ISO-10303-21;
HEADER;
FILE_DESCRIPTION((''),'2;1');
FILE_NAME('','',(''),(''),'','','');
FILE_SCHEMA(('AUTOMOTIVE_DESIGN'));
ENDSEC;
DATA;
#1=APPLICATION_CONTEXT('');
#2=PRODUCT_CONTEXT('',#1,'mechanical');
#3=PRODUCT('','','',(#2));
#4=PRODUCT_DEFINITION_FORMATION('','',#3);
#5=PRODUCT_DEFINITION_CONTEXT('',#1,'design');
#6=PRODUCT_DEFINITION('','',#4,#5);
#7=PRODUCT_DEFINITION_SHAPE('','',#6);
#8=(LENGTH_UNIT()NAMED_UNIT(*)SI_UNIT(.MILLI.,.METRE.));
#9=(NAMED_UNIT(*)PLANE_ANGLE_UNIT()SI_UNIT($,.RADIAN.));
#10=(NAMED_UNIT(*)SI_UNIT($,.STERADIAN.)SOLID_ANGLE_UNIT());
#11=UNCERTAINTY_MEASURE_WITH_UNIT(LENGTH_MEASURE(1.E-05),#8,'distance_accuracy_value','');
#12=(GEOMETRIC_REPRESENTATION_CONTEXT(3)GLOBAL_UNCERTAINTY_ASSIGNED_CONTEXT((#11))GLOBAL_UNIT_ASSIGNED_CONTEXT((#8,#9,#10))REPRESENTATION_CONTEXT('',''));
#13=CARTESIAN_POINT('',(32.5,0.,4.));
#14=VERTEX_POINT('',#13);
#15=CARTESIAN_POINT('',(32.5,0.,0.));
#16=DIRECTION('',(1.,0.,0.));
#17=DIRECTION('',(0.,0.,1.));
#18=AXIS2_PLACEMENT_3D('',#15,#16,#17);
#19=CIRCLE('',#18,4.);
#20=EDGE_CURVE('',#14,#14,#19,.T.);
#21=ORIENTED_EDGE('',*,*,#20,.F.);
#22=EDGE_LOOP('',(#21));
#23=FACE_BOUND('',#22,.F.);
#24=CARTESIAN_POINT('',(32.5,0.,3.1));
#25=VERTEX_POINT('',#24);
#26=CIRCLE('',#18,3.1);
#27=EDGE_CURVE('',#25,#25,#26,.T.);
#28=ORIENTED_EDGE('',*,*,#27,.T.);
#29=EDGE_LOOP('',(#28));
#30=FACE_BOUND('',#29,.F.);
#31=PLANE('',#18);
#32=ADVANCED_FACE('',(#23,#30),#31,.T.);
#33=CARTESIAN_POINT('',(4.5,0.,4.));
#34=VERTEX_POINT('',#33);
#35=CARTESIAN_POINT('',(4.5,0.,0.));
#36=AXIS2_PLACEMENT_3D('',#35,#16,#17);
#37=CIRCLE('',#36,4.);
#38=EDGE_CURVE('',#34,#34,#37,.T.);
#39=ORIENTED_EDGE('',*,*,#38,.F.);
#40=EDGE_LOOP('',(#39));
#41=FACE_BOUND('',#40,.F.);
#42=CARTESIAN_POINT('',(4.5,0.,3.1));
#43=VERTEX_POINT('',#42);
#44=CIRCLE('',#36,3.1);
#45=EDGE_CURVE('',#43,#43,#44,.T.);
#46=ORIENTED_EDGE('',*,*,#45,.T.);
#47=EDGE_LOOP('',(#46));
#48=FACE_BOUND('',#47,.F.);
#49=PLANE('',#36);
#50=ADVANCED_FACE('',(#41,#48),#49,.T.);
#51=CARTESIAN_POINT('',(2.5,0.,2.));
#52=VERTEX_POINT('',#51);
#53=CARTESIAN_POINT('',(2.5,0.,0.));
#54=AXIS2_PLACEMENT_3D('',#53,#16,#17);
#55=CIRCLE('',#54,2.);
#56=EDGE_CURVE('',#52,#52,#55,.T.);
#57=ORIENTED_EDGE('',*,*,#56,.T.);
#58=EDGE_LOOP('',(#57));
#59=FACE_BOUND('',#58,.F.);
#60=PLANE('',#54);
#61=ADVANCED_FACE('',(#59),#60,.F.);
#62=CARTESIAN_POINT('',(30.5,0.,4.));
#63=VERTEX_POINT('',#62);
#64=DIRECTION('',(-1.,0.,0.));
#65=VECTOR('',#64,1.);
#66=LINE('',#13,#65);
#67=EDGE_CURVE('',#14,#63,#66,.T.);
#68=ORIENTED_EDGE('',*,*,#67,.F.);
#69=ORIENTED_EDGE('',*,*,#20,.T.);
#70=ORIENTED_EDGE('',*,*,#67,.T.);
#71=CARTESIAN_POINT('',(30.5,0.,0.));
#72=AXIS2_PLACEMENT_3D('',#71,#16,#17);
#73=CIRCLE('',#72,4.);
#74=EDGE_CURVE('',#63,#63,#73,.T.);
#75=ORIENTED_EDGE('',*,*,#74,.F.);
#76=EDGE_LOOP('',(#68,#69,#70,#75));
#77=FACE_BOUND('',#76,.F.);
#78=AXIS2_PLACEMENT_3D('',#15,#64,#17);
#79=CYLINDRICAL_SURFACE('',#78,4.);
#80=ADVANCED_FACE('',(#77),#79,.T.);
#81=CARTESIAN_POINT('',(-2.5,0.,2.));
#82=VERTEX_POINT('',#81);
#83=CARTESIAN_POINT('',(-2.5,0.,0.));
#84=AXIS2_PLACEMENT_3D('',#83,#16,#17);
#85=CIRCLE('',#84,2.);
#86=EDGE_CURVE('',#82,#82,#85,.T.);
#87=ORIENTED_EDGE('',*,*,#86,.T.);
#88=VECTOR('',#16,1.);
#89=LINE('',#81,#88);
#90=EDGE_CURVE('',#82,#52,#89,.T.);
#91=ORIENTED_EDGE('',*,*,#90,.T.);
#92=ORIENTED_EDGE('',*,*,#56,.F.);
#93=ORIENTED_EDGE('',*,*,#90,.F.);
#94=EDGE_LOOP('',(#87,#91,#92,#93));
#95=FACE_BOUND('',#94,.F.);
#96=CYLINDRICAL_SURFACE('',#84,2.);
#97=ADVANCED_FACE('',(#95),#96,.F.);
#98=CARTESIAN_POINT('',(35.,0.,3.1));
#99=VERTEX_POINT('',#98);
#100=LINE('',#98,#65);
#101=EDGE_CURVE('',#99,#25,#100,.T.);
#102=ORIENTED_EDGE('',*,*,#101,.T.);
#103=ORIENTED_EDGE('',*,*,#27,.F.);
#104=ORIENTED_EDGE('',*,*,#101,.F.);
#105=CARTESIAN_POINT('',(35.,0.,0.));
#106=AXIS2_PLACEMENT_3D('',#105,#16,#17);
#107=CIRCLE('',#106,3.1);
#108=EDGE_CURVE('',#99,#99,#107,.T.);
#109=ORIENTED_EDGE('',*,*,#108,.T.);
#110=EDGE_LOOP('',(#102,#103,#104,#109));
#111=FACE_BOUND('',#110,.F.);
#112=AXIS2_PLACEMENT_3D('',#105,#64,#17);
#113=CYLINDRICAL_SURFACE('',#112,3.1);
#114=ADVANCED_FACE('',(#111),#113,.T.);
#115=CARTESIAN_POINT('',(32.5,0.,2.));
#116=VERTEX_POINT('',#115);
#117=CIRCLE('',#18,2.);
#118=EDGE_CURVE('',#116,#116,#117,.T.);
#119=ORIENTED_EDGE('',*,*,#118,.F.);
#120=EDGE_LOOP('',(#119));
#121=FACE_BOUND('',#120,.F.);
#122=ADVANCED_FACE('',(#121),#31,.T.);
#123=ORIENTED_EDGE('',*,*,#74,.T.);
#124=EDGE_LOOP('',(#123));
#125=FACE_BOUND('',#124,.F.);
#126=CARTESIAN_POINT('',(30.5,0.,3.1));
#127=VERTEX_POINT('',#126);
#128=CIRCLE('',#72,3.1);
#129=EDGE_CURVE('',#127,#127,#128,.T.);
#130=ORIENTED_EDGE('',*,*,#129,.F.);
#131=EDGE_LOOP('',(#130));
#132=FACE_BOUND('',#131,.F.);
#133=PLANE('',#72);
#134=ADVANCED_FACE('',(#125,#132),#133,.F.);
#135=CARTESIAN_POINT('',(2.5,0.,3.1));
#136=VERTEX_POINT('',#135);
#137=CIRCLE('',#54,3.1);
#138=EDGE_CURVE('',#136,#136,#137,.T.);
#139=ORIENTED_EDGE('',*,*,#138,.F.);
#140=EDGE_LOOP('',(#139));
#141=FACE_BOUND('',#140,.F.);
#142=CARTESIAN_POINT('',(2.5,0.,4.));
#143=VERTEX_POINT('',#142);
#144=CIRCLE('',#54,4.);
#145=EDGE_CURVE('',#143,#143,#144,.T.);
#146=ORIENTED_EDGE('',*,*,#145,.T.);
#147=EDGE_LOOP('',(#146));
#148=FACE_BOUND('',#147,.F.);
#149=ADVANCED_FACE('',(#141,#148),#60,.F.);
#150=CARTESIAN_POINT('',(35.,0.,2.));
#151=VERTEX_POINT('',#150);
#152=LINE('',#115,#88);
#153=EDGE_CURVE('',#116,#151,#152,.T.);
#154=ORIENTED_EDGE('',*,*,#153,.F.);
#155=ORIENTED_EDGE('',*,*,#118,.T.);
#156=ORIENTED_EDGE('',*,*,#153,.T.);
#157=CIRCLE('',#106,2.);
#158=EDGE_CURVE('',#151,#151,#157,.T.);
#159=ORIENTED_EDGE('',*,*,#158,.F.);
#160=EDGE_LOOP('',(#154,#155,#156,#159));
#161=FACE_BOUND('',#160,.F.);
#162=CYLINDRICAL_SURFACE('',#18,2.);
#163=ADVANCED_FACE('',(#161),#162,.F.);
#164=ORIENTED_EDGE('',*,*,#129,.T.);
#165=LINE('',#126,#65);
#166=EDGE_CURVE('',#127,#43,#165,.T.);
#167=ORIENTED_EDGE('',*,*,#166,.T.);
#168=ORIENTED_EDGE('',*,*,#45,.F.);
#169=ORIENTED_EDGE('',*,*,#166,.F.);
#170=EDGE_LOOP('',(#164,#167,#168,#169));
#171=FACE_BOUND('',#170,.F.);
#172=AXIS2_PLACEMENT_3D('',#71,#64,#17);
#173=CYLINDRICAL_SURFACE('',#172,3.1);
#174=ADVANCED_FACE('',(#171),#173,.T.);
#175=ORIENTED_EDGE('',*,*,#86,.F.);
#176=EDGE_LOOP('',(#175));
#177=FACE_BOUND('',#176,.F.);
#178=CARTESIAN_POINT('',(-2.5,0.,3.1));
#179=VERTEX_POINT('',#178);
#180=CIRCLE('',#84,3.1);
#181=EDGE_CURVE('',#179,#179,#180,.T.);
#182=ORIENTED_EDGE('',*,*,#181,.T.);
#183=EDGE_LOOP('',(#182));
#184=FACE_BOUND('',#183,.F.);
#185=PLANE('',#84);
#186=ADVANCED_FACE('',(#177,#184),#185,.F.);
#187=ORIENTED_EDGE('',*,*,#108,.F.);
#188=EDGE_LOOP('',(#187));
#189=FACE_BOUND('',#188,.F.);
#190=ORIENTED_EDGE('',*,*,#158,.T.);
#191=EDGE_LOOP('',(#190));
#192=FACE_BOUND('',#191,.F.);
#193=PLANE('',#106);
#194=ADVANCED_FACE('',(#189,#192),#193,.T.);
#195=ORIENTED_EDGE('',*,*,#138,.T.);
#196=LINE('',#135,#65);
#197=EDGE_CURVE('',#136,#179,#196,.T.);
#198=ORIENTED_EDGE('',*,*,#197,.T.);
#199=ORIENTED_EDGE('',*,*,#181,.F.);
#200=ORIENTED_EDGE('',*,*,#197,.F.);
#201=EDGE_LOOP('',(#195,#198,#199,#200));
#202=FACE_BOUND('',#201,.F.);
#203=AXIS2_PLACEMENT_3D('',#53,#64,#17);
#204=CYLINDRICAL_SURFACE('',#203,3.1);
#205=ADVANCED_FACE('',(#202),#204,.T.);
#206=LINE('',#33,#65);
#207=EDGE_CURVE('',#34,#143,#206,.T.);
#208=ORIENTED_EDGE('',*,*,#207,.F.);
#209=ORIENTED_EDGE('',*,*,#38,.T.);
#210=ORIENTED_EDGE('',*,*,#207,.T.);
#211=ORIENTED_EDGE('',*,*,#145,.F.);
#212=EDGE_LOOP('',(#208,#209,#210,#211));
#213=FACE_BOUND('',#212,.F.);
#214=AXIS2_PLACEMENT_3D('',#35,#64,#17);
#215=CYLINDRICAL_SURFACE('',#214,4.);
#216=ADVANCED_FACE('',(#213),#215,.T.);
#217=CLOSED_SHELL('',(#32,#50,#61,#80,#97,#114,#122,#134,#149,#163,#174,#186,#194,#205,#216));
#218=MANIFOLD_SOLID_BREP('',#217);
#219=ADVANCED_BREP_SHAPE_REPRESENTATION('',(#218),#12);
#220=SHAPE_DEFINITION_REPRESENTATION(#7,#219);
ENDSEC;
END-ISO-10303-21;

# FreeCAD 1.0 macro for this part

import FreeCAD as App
import Part
import Sketcher
from FreeCAD import Vector

doc = App.newDocument("Part")
body = doc.addObject("PartDesign::Body", "Body")

# Sketch on XZ plane
sketch1 = doc.addObject("Sketcher::SketchObject", "Sketch")
body.addObject(sketch1)
sketch1.AttachmentSupport = (doc.XZ_Plane, [""])
sketch1.MapMode = "FlatFace"
sketch1.addGeometry([
    Part.LineSegment(Vector(2.5, 3.1, 0), Vector(-2.5, 3.1, 0)),  # 0
    Part.LineSegment(Vector(-2.5, 3.1, 0), Vector(-2.5, 2, 0)),  # 1
    Part.LineSegment(Vector(-2.5, 2, 0), Vector(2.5, 2, 0)),  # 2
    Part.LineSegment(Vector(2.5, 2, 0), Vector(2.5, 0, 0)),  # 3
    Part.LineSegment(Vector(2.5, 0, 0), Vector(32.5, 0, 0)),  # 4
    Part.LineSegment(Vector(32.5, 0, 0), Vector(32.5, 2, 0)),  # 5
    Part.LineSegment(Vector(32.5, 2, 0), Vector(35, 2, 0)),  # 6
    Part.LineSegment(Vector(35, 2, 0), Vector(35, 3.1, 0)),  # 7
    Part.LineSegment(Vector(35, 3.1, 0), Vector(32.5, 3.1, 0)),  # 8
    Part.LineSegment(Vector(32.5, 3.1, 0), Vector(32.5, 4, 0)),  # 9
    Part.LineSegment(Vector(32.5, 4, 0), Vector(30.5, 4, 0)),  # 10
    Part.LineSegment(Vector(30.5, 4, 0), Vector(30.5, 3.1, 0)),  # 11
    Part.LineSegment(Vector(30.5, 3.1, 0), Vector(4.5, 3.1, 0)),  # 12
    Part.LineSegment(Vector(4.5, 3.1, 0), Vector(4.5, 4, 0)),  # 13
    Part.LineSegment(Vector(4.5, 4, 0), Vector(2.5, 4, 0)),  # 14
    Part.LineSegment(Vector(2.5, 4, 0), Vector(2.5, 3.1, 0)),  # 15
], False)
sketch1.addConstraint([
    Sketcher.Constraint("Coincident", 0, 2, 1, 1),
    Sketcher.Constraint("Coincident", 1, 2, 2, 1),
    Sketcher.Constraint("Coincident", 2, 2, 3, 1),
    Sketcher.Constraint("Coincident", 3, 2, 4, 1),
    Sketcher.Constraint("Coincident", 4, 2, 5, 1),
    Sketcher.Constraint("Coincident", 5, 2, 6, 1),
    Sketcher.Constraint("Coincident", 6, 2, 7, 1),
    Sketcher.Constraint("Coincident", 7, 2, 8, 1),
    Sketcher.Constraint("Coincident", 8, 2, 9, 1),
    Sketcher.Constraint("Coincident", 9, 2, 10, 1),
    Sketcher.Constraint("Coincident", 10, 2, 11, 1),
    Sketcher.Constraint("Coincident", 11, 2, 12, 1),
    Sketcher.Constraint("Coincident", 12, 2, 13, 1),
    Sketcher.Constraint("Coincident", 13, 2, 14, 1),
    Sketcher.Constraint("Coincident", 14, 2, 15, 1),
    Sketcher.Constraint("Coincident", 15, 2, 0, 1),
    Sketcher.Constraint("Horizontal", 0),
    Sketcher.Constraint("Vertical", 1),
    Sketcher.Constraint("Horizontal", 2),
    Sketcher.Constraint("Vertical", 3),
    Sketcher.Constraint("Horizontal", 4),
    Sketcher.Constraint("Vertical", 5),
    Sketcher.Constraint("Horizontal", 6),
    Sketcher.Constraint("Vertical", 7),
    Sketcher.Constraint("Horizontal", 8),
    Sketcher.Constraint("Vertical", 9),
    Sketcher.Constraint("Horizontal", 10),
    Sketcher.Constraint("Vertical", 11),
    Sketcher.Constraint("Horizontal", 12),
    Sketcher.Constraint("Vertical", 13),
    Sketcher.Constraint("Horizontal", 14),
    Sketcher.Constraint("Vertical", 15),
    Sketcher.Constraint("PointOnObject", 3, 2, -1),
    Sketcher.Constraint("Horizontal", 2, 2, 5, 2),
    Sketcher.Constraint("Horizontal", 0, 2, 7, 2),
    Sketcher.Constraint("Horizontal", 8, 2, 11, 2),
    Sketcher.Constraint("Horizontal", 10, 2, 13, 2),
    Sketcher.Constraint("Vertical", 5, 2, 8, 2),
    Sketcher.Constraint("Vertical", 3, 2, 14, 2),
    Sketcher.Constraint("Equal", 10, 14),
    Sketcher.Constraint("Equal", 14, 3),
    Sketcher.Constraint("DistanceX", 0, 2, 0, 1, 5.0),
    Sketcher.Constraint("DistanceX", 4, 1, 4, 2, 30.0),
    Sketcher.Constraint("DistanceX", 10, 2, 10, 1, 2.0),
    Sketcher.Constraint("DistanceX", 6, 1, 6, 2, 2.5),
    Sketcher.Constraint("DistanceY", 1, 2, 1, 1, 1.1),
    Sketcher.Constraint("DistanceY", 9, 1, 9, 2, 0.9),
    Sketcher.Constraint("DistanceX", -1, 1, 6, 2, 35.0),
])
revolution = doc.addObject("PartDesign::Revolution", "Revolution")
body.addObject(revolution)
revolution.Profile = sketch1
revolution.ReferenceAxis = (sketch1, ["H_Axis"])
revolution.Angle = 360

doc.recompute()
